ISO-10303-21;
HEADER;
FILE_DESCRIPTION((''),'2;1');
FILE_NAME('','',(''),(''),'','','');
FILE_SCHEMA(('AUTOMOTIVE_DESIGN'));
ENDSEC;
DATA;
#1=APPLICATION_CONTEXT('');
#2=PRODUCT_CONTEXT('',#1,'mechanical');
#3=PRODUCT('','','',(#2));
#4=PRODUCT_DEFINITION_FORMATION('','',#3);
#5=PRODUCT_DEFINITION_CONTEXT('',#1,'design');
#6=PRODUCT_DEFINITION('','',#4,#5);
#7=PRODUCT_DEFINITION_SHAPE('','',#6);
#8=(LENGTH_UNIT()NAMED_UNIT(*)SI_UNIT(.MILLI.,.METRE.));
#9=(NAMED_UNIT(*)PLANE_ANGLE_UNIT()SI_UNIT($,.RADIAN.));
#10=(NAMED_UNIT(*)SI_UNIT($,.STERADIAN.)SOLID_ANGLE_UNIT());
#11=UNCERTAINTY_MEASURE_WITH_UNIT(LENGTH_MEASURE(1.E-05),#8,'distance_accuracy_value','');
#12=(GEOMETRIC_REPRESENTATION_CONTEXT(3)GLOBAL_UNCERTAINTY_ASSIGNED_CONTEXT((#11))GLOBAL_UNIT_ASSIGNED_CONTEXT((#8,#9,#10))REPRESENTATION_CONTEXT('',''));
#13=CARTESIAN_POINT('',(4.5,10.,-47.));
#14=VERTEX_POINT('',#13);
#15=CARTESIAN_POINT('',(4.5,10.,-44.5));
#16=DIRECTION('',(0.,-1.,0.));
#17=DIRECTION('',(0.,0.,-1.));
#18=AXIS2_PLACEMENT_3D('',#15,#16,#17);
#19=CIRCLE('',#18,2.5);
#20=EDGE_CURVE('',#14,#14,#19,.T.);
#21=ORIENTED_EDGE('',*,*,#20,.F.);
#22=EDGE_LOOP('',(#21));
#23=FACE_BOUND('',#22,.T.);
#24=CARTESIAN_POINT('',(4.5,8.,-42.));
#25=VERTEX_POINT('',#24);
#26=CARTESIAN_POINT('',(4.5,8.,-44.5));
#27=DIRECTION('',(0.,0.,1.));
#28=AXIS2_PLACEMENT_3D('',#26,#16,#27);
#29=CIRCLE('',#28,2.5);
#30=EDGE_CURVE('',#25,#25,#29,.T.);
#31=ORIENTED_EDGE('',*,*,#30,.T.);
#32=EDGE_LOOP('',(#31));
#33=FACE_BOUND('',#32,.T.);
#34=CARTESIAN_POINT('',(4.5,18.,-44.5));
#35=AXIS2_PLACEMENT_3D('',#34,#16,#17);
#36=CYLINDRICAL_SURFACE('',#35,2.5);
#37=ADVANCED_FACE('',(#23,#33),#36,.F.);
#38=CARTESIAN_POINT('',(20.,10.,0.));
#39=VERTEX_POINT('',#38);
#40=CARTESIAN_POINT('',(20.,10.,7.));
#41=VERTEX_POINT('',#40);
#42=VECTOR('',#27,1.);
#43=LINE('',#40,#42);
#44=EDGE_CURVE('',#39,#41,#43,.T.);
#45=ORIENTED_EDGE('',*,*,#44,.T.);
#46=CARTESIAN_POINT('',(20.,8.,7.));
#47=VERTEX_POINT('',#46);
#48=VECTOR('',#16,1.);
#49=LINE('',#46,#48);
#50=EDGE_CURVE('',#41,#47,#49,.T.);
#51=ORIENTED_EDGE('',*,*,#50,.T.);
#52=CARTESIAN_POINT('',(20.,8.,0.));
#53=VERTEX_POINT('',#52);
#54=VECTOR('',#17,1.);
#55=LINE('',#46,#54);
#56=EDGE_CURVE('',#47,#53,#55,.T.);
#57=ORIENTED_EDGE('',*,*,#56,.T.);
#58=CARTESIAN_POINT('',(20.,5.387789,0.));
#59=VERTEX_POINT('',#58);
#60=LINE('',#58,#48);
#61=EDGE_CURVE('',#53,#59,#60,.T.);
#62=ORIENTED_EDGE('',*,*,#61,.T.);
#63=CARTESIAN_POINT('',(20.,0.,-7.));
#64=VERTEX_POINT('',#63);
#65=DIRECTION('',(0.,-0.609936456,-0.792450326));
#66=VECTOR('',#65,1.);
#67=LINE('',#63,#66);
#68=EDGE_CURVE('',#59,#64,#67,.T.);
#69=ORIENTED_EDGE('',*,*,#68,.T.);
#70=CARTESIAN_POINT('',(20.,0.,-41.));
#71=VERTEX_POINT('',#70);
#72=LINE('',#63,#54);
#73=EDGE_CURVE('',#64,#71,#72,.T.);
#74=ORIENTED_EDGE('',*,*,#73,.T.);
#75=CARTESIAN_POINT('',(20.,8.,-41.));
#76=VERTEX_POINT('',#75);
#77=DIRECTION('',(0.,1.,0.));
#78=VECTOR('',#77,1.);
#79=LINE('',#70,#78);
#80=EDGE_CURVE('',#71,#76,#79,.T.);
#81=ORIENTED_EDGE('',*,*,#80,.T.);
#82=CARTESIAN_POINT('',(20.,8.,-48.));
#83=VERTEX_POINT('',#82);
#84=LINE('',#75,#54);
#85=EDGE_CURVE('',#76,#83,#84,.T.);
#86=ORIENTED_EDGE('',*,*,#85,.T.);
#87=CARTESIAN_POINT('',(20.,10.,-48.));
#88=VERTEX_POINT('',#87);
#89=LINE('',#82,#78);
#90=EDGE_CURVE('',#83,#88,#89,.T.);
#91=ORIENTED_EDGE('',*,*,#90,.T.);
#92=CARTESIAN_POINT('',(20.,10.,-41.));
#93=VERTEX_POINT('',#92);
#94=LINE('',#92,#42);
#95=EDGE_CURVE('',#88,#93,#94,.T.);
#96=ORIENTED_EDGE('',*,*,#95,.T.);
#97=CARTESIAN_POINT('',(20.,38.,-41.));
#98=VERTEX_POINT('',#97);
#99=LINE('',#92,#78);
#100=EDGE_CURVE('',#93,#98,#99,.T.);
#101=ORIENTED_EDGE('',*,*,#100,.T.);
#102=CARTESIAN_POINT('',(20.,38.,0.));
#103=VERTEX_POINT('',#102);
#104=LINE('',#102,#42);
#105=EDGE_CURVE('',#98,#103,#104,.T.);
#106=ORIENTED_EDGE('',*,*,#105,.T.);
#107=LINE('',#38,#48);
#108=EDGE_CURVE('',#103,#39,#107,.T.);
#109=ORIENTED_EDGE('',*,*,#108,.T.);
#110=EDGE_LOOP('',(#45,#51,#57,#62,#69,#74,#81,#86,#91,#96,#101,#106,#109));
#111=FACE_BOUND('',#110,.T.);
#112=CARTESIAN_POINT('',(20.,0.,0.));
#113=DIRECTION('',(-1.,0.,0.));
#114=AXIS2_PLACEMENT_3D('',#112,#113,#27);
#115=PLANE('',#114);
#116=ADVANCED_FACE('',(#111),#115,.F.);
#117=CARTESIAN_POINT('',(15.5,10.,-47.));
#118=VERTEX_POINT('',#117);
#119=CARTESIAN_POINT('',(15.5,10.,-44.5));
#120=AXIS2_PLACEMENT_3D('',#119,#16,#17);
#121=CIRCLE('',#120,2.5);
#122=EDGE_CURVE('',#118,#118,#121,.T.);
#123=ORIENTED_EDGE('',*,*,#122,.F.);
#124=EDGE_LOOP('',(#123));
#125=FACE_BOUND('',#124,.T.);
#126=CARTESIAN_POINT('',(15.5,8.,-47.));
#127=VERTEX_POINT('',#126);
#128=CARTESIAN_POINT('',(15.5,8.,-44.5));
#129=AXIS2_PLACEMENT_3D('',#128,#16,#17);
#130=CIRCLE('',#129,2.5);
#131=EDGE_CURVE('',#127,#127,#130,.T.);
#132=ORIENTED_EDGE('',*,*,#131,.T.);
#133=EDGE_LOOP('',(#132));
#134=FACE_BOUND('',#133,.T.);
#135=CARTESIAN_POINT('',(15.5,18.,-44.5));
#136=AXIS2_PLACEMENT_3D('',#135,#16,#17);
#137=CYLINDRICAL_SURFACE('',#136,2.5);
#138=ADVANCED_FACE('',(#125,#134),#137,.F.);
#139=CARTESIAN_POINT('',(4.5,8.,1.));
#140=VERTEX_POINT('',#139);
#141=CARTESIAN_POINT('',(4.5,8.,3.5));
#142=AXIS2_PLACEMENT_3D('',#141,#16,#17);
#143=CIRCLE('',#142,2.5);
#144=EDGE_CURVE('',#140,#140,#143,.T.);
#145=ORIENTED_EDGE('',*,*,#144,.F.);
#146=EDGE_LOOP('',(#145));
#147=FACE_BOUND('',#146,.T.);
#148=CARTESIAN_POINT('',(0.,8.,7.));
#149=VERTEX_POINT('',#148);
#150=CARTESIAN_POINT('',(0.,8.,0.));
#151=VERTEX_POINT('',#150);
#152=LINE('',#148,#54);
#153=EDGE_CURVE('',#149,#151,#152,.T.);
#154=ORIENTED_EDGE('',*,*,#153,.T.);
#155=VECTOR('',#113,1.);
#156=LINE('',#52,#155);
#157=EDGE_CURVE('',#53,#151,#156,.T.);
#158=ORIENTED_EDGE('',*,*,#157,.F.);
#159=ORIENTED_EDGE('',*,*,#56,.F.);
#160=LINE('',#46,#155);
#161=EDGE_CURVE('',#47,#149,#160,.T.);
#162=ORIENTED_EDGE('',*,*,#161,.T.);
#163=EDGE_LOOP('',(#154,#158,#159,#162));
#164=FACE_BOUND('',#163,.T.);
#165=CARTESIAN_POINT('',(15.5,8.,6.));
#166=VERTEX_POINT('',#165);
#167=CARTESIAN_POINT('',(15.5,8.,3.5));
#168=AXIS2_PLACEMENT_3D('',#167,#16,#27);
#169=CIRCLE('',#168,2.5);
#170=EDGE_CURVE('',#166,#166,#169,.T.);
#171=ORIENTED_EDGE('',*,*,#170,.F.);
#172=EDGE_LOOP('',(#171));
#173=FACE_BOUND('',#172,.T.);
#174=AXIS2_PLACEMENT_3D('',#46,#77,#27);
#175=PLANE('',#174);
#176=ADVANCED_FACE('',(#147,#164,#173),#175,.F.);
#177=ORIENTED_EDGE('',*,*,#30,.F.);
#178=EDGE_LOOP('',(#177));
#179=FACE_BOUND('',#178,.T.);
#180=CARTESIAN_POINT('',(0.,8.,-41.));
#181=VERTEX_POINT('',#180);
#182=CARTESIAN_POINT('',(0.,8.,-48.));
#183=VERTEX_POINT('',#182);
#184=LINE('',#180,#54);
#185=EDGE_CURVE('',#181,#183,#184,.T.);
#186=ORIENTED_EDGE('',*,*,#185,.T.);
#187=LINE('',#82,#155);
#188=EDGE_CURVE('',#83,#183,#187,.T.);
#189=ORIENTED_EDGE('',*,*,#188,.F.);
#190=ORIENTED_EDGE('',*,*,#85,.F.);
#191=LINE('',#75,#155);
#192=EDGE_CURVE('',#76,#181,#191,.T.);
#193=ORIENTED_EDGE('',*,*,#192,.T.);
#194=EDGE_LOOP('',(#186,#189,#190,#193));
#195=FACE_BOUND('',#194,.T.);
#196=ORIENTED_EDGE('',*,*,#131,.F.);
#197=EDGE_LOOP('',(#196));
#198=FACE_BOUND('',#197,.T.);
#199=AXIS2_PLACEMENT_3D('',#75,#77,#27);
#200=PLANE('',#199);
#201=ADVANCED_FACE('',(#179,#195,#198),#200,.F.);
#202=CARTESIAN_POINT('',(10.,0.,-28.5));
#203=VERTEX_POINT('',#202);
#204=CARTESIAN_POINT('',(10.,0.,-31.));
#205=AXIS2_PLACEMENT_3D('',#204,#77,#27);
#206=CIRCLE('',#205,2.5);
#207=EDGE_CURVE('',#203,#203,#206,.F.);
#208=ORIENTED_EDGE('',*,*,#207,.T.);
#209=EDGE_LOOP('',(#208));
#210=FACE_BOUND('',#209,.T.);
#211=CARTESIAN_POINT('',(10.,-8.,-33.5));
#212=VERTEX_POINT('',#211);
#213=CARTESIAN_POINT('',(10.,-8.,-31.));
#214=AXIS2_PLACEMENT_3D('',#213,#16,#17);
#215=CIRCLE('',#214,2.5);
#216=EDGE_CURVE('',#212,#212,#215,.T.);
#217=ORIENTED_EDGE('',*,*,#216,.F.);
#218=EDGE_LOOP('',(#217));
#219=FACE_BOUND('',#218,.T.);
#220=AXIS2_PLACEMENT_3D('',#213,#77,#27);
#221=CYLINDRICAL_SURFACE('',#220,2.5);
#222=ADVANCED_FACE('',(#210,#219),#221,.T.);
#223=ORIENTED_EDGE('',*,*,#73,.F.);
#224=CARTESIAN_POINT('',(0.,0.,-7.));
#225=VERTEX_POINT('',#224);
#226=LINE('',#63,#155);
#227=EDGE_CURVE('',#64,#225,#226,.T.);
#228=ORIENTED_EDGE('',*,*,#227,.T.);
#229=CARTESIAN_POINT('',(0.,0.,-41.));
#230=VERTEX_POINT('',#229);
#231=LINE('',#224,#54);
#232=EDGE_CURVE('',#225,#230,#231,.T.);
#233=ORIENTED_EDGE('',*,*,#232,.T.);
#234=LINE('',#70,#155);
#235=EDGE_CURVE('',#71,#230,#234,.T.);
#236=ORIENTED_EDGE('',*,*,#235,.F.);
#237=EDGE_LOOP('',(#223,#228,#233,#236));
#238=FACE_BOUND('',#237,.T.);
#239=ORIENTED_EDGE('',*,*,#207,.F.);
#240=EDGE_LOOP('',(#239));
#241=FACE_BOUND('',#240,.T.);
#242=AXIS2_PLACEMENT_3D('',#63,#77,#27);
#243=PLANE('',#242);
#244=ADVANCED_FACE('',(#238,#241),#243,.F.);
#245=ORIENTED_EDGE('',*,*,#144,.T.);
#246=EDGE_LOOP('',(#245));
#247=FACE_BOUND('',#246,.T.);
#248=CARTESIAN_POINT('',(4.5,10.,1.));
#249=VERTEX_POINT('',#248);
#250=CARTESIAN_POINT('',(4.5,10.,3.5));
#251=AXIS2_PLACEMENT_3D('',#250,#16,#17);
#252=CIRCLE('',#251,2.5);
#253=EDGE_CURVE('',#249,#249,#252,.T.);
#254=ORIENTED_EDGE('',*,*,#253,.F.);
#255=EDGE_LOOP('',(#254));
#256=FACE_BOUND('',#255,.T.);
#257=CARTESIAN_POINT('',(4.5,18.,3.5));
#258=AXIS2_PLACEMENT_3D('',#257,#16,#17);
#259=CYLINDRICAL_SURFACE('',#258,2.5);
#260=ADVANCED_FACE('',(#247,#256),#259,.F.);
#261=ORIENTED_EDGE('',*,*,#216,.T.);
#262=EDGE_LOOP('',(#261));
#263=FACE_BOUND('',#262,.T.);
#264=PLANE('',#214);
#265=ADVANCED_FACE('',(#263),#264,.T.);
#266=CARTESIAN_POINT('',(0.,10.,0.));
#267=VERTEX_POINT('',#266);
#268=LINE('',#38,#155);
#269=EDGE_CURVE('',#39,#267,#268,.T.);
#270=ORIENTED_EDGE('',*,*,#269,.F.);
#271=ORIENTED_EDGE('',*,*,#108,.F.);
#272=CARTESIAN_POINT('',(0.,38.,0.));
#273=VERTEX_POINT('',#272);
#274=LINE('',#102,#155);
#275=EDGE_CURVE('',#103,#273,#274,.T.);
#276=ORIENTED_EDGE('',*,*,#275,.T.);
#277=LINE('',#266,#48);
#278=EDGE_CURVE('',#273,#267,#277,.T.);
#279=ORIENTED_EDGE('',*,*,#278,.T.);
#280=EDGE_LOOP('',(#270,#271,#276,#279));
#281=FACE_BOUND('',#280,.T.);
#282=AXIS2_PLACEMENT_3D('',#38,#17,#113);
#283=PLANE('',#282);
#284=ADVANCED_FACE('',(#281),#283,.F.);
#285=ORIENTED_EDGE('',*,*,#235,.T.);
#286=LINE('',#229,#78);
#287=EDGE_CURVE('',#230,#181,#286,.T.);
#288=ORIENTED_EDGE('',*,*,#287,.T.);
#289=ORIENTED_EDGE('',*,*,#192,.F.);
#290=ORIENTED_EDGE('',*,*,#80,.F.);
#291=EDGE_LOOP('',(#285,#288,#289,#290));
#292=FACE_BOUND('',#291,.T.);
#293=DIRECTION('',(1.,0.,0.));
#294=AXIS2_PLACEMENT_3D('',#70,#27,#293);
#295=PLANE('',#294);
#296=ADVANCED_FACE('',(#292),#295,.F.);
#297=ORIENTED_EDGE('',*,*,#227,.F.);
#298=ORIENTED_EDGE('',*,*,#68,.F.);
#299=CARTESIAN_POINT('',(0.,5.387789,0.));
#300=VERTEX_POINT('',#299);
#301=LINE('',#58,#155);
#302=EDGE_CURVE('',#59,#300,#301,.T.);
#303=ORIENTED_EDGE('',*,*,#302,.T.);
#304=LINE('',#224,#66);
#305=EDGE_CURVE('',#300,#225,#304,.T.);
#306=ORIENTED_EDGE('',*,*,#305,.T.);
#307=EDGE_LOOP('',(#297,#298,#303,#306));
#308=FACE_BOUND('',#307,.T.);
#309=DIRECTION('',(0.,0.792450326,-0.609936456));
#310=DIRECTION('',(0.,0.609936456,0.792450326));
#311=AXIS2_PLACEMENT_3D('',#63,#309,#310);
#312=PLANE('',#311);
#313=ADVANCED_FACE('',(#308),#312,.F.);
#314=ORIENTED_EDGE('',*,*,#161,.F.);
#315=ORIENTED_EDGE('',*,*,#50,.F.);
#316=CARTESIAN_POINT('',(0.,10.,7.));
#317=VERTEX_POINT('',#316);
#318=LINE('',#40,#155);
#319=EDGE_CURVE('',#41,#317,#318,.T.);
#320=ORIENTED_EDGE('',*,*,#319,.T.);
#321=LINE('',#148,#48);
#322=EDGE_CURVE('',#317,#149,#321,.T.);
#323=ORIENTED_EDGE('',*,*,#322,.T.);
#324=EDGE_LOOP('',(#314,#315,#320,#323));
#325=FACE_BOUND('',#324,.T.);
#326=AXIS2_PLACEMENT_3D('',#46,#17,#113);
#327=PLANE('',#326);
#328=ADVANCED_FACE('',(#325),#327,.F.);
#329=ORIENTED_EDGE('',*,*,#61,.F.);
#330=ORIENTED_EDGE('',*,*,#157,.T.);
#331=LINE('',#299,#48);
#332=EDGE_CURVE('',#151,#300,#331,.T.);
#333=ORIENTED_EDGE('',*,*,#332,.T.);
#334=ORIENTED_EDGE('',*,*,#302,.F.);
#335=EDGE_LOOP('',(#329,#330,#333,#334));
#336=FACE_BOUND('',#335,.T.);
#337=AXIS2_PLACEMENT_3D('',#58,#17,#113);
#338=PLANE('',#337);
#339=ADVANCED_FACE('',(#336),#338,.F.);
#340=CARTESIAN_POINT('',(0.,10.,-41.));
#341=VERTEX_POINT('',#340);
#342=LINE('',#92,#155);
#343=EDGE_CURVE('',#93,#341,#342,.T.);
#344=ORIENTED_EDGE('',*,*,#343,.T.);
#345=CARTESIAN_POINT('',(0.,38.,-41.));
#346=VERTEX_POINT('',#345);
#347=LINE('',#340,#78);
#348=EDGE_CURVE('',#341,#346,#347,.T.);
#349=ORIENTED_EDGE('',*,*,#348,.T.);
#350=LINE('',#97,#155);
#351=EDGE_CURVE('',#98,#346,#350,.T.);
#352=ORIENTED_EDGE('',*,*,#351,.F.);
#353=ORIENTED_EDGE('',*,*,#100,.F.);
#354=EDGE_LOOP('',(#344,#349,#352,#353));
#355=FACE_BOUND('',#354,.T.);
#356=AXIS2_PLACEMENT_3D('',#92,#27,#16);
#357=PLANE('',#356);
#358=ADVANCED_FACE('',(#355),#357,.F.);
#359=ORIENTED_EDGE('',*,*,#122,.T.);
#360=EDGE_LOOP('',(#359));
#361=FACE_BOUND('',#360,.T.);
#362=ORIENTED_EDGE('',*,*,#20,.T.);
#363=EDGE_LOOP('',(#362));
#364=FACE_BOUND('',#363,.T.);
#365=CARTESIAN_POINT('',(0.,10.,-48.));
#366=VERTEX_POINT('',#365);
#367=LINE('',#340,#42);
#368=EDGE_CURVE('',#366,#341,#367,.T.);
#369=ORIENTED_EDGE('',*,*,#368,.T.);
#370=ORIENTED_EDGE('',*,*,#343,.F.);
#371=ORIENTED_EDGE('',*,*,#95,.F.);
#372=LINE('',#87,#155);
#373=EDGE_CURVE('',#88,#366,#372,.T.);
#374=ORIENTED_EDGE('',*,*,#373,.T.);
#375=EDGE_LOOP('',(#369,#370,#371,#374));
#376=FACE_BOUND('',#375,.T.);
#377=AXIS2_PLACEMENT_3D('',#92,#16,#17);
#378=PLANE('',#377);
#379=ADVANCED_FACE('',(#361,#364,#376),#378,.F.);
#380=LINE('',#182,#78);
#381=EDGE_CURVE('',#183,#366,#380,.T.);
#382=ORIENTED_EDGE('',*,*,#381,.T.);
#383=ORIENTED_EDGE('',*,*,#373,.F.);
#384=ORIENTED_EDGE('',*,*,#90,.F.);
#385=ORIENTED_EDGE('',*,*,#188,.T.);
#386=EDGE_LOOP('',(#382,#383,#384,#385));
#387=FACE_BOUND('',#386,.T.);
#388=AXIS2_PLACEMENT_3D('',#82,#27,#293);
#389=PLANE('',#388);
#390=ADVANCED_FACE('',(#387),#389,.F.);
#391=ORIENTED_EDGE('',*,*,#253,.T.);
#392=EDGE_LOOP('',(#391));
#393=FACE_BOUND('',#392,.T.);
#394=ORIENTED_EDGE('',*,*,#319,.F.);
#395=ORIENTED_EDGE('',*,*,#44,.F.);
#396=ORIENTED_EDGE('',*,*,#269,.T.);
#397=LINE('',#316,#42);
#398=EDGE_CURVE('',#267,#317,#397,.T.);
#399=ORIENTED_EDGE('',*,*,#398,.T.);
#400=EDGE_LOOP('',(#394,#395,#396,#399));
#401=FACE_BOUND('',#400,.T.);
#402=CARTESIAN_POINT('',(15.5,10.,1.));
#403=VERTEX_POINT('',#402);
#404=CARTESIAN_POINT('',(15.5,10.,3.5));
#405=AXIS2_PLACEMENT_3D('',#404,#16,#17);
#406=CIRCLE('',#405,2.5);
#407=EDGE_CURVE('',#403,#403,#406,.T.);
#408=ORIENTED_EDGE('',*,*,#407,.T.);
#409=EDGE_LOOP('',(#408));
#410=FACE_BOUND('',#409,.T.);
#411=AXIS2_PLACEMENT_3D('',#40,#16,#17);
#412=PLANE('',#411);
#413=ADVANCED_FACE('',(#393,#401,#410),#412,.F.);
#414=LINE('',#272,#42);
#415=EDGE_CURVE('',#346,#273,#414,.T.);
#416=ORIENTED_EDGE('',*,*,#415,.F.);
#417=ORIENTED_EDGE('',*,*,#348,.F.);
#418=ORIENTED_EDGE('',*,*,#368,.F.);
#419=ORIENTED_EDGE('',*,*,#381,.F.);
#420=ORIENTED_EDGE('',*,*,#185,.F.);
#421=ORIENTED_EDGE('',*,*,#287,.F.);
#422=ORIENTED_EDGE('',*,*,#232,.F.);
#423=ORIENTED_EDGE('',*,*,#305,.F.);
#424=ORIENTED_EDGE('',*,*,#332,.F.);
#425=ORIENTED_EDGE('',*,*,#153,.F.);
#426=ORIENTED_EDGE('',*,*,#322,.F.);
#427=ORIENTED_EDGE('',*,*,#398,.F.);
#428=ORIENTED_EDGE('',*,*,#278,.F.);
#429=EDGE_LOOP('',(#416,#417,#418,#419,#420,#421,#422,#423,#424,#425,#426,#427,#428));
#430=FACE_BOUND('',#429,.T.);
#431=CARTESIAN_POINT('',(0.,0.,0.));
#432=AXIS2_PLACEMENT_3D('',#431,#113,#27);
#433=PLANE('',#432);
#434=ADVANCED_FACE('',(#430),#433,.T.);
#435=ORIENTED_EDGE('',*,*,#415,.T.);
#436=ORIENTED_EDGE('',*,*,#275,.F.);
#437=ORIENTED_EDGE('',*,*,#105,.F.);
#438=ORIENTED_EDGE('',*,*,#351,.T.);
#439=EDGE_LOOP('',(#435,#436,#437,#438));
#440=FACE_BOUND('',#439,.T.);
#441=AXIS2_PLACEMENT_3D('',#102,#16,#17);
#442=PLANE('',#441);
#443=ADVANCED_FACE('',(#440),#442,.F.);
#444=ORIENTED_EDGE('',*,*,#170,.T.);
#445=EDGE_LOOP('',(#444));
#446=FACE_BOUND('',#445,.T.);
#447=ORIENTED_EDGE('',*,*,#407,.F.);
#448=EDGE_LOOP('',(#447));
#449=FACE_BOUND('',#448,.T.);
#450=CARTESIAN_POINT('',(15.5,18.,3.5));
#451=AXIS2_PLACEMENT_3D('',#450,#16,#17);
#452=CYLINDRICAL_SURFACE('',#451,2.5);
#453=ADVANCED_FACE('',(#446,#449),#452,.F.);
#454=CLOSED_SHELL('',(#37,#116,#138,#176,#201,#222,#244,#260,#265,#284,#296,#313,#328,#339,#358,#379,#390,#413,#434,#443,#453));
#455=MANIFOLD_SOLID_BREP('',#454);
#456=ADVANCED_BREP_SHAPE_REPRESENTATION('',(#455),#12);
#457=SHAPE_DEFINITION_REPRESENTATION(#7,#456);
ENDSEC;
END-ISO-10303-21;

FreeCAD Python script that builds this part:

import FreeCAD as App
import Part
import Sketcher

V = App.Vector


def add_polygon(sketch, points):
    """Adds a closed chain of lines whose ends are joined by coincident constraints."""
    first, n = sketch.GeometryCount, len(points)
    for a, b in zip(points, points[1:] + points[:1]):
        sketch.addGeometry(Part.LineSegment(App.Vector(*a, 0), App.Vector(*b, 0)), False)
    for i in range(n):
        sketch.addConstraint(Sketcher.Constraint("Coincident", first + i, 2, first + (i + 1) % n, 1))

doc = App.newDocument("Part")
body = doc.addObject("PartDesign::Body", "Body")

# Sketch on YZ plane
sketch1 = body.newObject("Sketcher::SketchObject", "Sketch")
sketch1.AttachmentSupport = (doc.getObject("YZ_Plane"), [""])
sketch1.MapMode = "FlatFace"
add_polygon(sketch1, [(10, -48), (10, -41), (38, -41), (38, 0), (10, 0), (10, 7), (8, 7), (8, 0), (5.387789, 0), (0, -7), (0, -41), (8, -41), (8, -48)])  # lines 0-12
sketch1.addConstraint(Sketcher.Constraint("Vertical", 0))
sketch1.addConstraint(Sketcher.Constraint("Horizontal", 1))
sketch1.addConstraint(Sketcher.Constraint("Vertical", 2))
sketch1.addConstraint(Sketcher.Constraint("Horizontal", 3))
sketch1.addConstraint(Sketcher.Constraint("Vertical", 4))
sketch1.addConstraint(Sketcher.Constraint("Horizontal", 5))
sketch1.addConstraint(Sketcher.Constraint("Vertical", 6))
sketch1.addConstraint(Sketcher.Constraint("Horizontal", 7))
sketch1.addConstraint(Sketcher.Constraint("Vertical", 9))
sketch1.addConstraint(Sketcher.Constraint("Horizontal", 10))
sketch1.addConstraint(Sketcher.Constraint("Vertical", 11))
sketch1.addConstraint(Sketcher.Constraint("Horizontal", 12))
sketch1.addConstraint(Sketcher.Constraint("PointOnObject", 2, 2, -1))
sketch1.addConstraint(Sketcher.Constraint("PointOnObject", 6, 2, -1))
sketch1.addConstraint(Sketcher.Constraint("PointOnObject", 8, 2, -2))
sketch1.addConstraint(Sketcher.Constraint("Horizontal", 1, 2, 9, 2))
sketch1.addConstraint(Sketcher.Constraint("Vertical", 0, 2, 3, 2))
sketch1.addConstraint(Sketcher.Constraint("Vertical", 6, 2, 10, 2))
sketch1.addConstraint(Sketcher.Constraint("Equal", 0, 4))
sketch1.addConstraint(Sketcher.Constraint("DistanceX", 1, 1, 1, 2, 28.0))
sketch1.addConstraint(Sketcher.Constraint("DistanceX", 5, 2, 5, 1, 2.0))
sketch1.addConstraint(Sketcher.Constraint("DistanceX", 10, 1, 10, 2, 8.0))
sketch1.addConstraint(Sketcher.Constraint("DistanceY", 0, 1, 0, 2, 7.0))
sketch1.addConstraint(Sketcher.Constraint("DistanceY", 2, 1, 2, 2, 41.0))
sketch1.addConstraint(Sketcher.Constraint("DistanceY", 9, 2, 9, 1, 34.0))
sketch1.addConstraint(Sketcher.Constraint("DistanceX", 7, 2, 7, 1, 2.612211))
pad1 = body.newObject("PartDesign::Pad", "Pad")
pad1.Profile = sketch1
pad1.Length = 20

# Sketch on XZ plane
sketch2 = body.newObject("Sketcher::SketchObject", "Sketch001")
sketch2.AttachmentSupport = (doc.getObject("XZ_Plane"), [""])
sketch2.MapMode = "FlatFace"
sketch2.addGeometry(Part.Circle(V(10, -31, 0), V(0, 0, 1), 2.5), False)
sketch2.addConstraint(Sketcher.Constraint("Diameter", 0, 5.0))
sketch2.addConstraint(Sketcher.Constraint("DistanceX", -1, 1, 0, 3, 10.0))
sketch2.addConstraint(Sketcher.Constraint("DistanceY", 0, 3, -1, 1, 31.0))
pad2 = body.newObject("PartDesign::Pad", "Pad001")
pad2.Profile = sketch2
pad2.Length = 8

# Sketch on XZ plane
sketch3 = body.newObject("Sketcher::SketchObject", "Sketch002")
sketch3.AttachmentSupport = (doc.getObject("XZ_Plane"), [""])
sketch3.MapMode = "FlatFace"
sketch3.AttachmentOffset = App.Placement(V(0, 0, -8), App.Rotation())
sketch3.addGeometry(Part.Circle(V(4.5, 3.5, 0), V(0, 0, 1), 2.5), False)
sketch3.addGeometry(Part.Circle(V(15.5, 3.5, 0), V(0, 0, 1), 2.5), False)
sketch3.addGeometry(Part.Circle(V(15.5, -44.5, 0), V(0, 0, 1), 2.5), False)
sketch3.addGeometry(Part.Circle(V(4.5, -44.5, 0), V(0, 0, 1), 2.5), False)
sketch3.addConstraint(Sketcher.Constraint("Equal", 0, 1))
sketch3.addConstraint(Sketcher.Constraint("Equal", 1, 2))
sketch3.addConstraint(Sketcher.Constraint("Equal", 2, 3))
sketch3.addConstraint(Sketcher.Constraint("Horizontal", 0, 3, 1, 3))
sketch3.addConstraint(Sketcher.Constraint("Horizontal", 2, 3, 3, 3))
sketch3.addConstraint(Sketcher.Constraint("Vertical", 1, 3, 2, 3))
sketch3.addConstraint(Sketcher.Constraint("Vertical", 0, 3, 3, 3))
sketch3.addConstraint(Sketcher.Constraint("Diameter", 0, 5.0))
sketch3.addConstraint(Sketcher.Constraint("DistanceX", 0, 3, 1, 3, 11.0))
sketch3.addConstraint(Sketcher.Constraint("DistanceY", 2, 3, 1, 3, 48.0))
sketch3.addConstraint(Sketcher.Constraint("DistanceX", -1, 1, 0, 3, 4.5))
sketch3.addConstraint(Sketcher.Constraint("DistanceY", -1, 1, 0, 3, 3.5))
pocket1 = body.newObject("PartDesign::Pocket", "Pocket")
pocket1.Profile = sketch3
pocket1.Length = 10

doc.recompute()
